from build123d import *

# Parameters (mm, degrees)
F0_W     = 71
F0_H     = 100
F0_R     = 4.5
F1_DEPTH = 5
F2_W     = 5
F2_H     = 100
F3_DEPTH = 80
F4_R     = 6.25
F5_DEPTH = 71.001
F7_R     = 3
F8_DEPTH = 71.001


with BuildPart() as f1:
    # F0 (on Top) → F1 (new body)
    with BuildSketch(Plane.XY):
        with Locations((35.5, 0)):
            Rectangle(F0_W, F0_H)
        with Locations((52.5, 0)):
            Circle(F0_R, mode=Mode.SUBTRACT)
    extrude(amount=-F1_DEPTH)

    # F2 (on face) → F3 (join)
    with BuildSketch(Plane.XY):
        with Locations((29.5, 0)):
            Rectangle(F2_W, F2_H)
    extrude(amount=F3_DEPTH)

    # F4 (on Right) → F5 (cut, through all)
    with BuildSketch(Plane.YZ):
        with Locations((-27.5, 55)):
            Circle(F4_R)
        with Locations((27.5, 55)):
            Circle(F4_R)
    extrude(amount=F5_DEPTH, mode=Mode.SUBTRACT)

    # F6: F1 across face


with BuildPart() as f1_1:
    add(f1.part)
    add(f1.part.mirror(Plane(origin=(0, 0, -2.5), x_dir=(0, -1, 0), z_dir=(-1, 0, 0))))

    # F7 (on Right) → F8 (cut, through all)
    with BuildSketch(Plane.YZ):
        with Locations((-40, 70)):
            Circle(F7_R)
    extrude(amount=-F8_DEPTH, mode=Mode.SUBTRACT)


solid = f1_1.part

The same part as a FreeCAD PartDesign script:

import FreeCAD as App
import Part
import Sketcher

V = App.Vector

doc = App.newDocument("Part")
body = doc.addObject("PartDesign::Body", "Body")

sketch1 = doc.addObject("Sketcher::SketchObject", "Sketch")
body.addObject(sketch1)
sketch1.AttachmentSupport = (doc.XY_Plane, [""])
sketch1.MapMode = "FlatFace"
sketch1.addGeometry([
    Part.LineSegment(V(0, 50, 0), V(0, -50, 0)),
    Part.LineSegment(V(0, -50, 0), V(71, -50, 0)),
    Part.LineSegment(V(71, -50, 0), V(71, 50, 0)),
    Part.LineSegment(V(71, 50, 0), V(0, 50, 0)),
    Part.Circle(V(52.5, 0, 0), V(0, 0, 1), 4.5),
], False)
sketch1.addConstraint([
    Sketcher.Constraint("Coincident", 0, 2, 1, 1),
    Sketcher.Constraint("Coincident", 1, 2, 2, 1),
    Sketcher.Constraint("Coincident", 2, 2, 3, 1),
    Sketcher.Constraint("Coincident", 3, 2, 0, 1),
    Sketcher.Constraint("Vertical", 0),
    Sketcher.Constraint("Horizontal", 1),
    Sketcher.Constraint("Vertical", 2),
    Sketcher.Constraint("Horizontal", 3),
    Sketcher.Constraint("Symmetric", 0, 2, 3, 2, -1, 1),
    Sketcher.Constraint("PointOnObject", 4, 3, -1),
    Sketcher.Constraint("Diameter", 4, 9.0),
    Sketcher.Constraint("DistanceX", 1, 1, 1, 2, 71.0),
    Sketcher.Constraint("DistanceY", 0, 2, 0, 1, 100.0),
    Sketcher.Constraint("DistanceX", -1, 1, 4, 3, 52.5),
])
pad1 = doc.addObject("PartDesign::Pad", "Pad")
body.addObject(pad1)
pad1.Profile = sketch1
pad1.Length = 5
pad1.Reversed = True

sketch2 = doc.addObject("Sketcher::SketchObject", "Sketch001")
body.addObject(sketch2)
sketch2.AttachmentSupport = (doc.XY_Plane, [""])
sketch2.MapMode = "FlatFace"
sketch2.addGeometry([
    Part.LineSegment(V(27, 50, 0), V(27, -50, 0)),
    Part.LineSegment(V(27, -50, 0), V(32, -50, 0)),
    Part.LineSegment(V(32, -50, 0), V(32, 50, 0)),
    Part.LineSegment(V(32, 50, 0), V(27, 50, 0)),
], False)
sketch2.addConstraint([
    Sketcher.Constraint("Coincident", 0, 2, 1, 1),
    Sketcher.Constraint("Coincident", 1, 2, 2, 1),
    Sketcher.Constraint("Coincident", 2, 2, 3, 1),
    Sketcher.Constraint("Coincident", 3, 2, 0, 1),
    Sketcher.Constraint("Vertical", 0),
    Sketcher.Constraint("Horizontal", 1),
    Sketcher.Constraint("Vertical", 2),
    Sketcher.Constraint("Horizontal", 3),
    Sketcher.Constraint("DistanceX", 1, 1, 1, 2, 5.0),
    Sketcher.Constraint("DistanceY", 0, 2, 0, 1, 100.0),
    Sketcher.Constraint("DistanceX", -1, 1, 0, 2, 27.0),
    Sketcher.Constraint("DistanceY", 0, 2, -1, 1, 50.0),
])
pad2 = doc.addObject("PartDesign::Pad", "Pad001")
body.addObject(pad2)
pad2.Profile = sketch2
pad2.Length = 80

sketch3 = doc.addObject("Sketcher::SketchObject", "Sketch002")
body.addObject(sketch3)
sketch3.AttachmentSupport = (doc.YZ_Plane, [""])
sketch3.MapMode = "FlatFace"
sketch3.addGeometry([
    Part.Circle(V(-28, 55, 0), V(0, 0, 1), 6),
    Part.Circle(V(28, 55, 0), V(0, 0, 1), 6),
], False)
sketch3.addConstraint([
    Sketcher.Constraint("Equal", 0, 1),
    Sketcher.Constraint("Symmetric", 0, 3, 1, 3, -2),
    Sketcher.Constraint("Diameter", 0, 12.5),
    Sketcher.Constraint("DistanceY", -1, 1, 0, 3, 55.0),
    Sketcher.Constraint("DistanceX", 0, 3, 1, 3, 55.0),
])
pocket1 = doc.addObject("PartDesign::Pocket", "Pocket")
body.addObject(pocket1)
pocket1.Profile = sketch3
pocket1.Type = "ThroughAll"
pocket1.Reversed = True
body2 = doc.addObject("PartDesign::Body", "Body001")
doc.recompute()

body2.BaseFeature = body
doc.recompute()

mirroring = doc.addObject("Part::Mirroring", "Mirroring")
mirroring.Source = body
mirroring.Base = V(0, 0, -2.5)
mirroring.Normal = V(-1, 0, 0)
body3 = doc.addObject("PartDesign::Body", "Body002")
body3.BaseFeature = mirroring
boolean = doc.addObject("PartDesign::Boolean", "Boolean")
body2.addObject(boolean)
boolean.Type = "Fuse"
boolean.addObjects([body3])
doc.recompute()

sketch4 = doc.addObject("Sketcher::SketchObject", "Sketch003")
body2.addObject(sketch4)
sketch4.AttachmentSupport = (doc.getObject("YZ_Plane001"), [""])
sketch4.MapMode = "FlatFace"
sketch4.addGeometry(Part.Circle(V(-40, 70, 0), V(0, 0, 1), 3), False)
sketch4.addConstraint([
    Sketcher.Constraint("Diameter", 0, 6.0),
    Sketcher.Constraint("DistanceX", 0, 3, -1, 1, 40.0),
    Sketcher.Constraint("DistanceY", -1, 1, 0, 3, 70.0),
])
pocket2 = doc.addObject("PartDesign::Pocket", "Pocket001")
body2.addObject(pocket2)
pocket2.Profile = sketch4
pocket2.Type = "ThroughAll"
mirroring.Visibility = False

doc.recompute()
